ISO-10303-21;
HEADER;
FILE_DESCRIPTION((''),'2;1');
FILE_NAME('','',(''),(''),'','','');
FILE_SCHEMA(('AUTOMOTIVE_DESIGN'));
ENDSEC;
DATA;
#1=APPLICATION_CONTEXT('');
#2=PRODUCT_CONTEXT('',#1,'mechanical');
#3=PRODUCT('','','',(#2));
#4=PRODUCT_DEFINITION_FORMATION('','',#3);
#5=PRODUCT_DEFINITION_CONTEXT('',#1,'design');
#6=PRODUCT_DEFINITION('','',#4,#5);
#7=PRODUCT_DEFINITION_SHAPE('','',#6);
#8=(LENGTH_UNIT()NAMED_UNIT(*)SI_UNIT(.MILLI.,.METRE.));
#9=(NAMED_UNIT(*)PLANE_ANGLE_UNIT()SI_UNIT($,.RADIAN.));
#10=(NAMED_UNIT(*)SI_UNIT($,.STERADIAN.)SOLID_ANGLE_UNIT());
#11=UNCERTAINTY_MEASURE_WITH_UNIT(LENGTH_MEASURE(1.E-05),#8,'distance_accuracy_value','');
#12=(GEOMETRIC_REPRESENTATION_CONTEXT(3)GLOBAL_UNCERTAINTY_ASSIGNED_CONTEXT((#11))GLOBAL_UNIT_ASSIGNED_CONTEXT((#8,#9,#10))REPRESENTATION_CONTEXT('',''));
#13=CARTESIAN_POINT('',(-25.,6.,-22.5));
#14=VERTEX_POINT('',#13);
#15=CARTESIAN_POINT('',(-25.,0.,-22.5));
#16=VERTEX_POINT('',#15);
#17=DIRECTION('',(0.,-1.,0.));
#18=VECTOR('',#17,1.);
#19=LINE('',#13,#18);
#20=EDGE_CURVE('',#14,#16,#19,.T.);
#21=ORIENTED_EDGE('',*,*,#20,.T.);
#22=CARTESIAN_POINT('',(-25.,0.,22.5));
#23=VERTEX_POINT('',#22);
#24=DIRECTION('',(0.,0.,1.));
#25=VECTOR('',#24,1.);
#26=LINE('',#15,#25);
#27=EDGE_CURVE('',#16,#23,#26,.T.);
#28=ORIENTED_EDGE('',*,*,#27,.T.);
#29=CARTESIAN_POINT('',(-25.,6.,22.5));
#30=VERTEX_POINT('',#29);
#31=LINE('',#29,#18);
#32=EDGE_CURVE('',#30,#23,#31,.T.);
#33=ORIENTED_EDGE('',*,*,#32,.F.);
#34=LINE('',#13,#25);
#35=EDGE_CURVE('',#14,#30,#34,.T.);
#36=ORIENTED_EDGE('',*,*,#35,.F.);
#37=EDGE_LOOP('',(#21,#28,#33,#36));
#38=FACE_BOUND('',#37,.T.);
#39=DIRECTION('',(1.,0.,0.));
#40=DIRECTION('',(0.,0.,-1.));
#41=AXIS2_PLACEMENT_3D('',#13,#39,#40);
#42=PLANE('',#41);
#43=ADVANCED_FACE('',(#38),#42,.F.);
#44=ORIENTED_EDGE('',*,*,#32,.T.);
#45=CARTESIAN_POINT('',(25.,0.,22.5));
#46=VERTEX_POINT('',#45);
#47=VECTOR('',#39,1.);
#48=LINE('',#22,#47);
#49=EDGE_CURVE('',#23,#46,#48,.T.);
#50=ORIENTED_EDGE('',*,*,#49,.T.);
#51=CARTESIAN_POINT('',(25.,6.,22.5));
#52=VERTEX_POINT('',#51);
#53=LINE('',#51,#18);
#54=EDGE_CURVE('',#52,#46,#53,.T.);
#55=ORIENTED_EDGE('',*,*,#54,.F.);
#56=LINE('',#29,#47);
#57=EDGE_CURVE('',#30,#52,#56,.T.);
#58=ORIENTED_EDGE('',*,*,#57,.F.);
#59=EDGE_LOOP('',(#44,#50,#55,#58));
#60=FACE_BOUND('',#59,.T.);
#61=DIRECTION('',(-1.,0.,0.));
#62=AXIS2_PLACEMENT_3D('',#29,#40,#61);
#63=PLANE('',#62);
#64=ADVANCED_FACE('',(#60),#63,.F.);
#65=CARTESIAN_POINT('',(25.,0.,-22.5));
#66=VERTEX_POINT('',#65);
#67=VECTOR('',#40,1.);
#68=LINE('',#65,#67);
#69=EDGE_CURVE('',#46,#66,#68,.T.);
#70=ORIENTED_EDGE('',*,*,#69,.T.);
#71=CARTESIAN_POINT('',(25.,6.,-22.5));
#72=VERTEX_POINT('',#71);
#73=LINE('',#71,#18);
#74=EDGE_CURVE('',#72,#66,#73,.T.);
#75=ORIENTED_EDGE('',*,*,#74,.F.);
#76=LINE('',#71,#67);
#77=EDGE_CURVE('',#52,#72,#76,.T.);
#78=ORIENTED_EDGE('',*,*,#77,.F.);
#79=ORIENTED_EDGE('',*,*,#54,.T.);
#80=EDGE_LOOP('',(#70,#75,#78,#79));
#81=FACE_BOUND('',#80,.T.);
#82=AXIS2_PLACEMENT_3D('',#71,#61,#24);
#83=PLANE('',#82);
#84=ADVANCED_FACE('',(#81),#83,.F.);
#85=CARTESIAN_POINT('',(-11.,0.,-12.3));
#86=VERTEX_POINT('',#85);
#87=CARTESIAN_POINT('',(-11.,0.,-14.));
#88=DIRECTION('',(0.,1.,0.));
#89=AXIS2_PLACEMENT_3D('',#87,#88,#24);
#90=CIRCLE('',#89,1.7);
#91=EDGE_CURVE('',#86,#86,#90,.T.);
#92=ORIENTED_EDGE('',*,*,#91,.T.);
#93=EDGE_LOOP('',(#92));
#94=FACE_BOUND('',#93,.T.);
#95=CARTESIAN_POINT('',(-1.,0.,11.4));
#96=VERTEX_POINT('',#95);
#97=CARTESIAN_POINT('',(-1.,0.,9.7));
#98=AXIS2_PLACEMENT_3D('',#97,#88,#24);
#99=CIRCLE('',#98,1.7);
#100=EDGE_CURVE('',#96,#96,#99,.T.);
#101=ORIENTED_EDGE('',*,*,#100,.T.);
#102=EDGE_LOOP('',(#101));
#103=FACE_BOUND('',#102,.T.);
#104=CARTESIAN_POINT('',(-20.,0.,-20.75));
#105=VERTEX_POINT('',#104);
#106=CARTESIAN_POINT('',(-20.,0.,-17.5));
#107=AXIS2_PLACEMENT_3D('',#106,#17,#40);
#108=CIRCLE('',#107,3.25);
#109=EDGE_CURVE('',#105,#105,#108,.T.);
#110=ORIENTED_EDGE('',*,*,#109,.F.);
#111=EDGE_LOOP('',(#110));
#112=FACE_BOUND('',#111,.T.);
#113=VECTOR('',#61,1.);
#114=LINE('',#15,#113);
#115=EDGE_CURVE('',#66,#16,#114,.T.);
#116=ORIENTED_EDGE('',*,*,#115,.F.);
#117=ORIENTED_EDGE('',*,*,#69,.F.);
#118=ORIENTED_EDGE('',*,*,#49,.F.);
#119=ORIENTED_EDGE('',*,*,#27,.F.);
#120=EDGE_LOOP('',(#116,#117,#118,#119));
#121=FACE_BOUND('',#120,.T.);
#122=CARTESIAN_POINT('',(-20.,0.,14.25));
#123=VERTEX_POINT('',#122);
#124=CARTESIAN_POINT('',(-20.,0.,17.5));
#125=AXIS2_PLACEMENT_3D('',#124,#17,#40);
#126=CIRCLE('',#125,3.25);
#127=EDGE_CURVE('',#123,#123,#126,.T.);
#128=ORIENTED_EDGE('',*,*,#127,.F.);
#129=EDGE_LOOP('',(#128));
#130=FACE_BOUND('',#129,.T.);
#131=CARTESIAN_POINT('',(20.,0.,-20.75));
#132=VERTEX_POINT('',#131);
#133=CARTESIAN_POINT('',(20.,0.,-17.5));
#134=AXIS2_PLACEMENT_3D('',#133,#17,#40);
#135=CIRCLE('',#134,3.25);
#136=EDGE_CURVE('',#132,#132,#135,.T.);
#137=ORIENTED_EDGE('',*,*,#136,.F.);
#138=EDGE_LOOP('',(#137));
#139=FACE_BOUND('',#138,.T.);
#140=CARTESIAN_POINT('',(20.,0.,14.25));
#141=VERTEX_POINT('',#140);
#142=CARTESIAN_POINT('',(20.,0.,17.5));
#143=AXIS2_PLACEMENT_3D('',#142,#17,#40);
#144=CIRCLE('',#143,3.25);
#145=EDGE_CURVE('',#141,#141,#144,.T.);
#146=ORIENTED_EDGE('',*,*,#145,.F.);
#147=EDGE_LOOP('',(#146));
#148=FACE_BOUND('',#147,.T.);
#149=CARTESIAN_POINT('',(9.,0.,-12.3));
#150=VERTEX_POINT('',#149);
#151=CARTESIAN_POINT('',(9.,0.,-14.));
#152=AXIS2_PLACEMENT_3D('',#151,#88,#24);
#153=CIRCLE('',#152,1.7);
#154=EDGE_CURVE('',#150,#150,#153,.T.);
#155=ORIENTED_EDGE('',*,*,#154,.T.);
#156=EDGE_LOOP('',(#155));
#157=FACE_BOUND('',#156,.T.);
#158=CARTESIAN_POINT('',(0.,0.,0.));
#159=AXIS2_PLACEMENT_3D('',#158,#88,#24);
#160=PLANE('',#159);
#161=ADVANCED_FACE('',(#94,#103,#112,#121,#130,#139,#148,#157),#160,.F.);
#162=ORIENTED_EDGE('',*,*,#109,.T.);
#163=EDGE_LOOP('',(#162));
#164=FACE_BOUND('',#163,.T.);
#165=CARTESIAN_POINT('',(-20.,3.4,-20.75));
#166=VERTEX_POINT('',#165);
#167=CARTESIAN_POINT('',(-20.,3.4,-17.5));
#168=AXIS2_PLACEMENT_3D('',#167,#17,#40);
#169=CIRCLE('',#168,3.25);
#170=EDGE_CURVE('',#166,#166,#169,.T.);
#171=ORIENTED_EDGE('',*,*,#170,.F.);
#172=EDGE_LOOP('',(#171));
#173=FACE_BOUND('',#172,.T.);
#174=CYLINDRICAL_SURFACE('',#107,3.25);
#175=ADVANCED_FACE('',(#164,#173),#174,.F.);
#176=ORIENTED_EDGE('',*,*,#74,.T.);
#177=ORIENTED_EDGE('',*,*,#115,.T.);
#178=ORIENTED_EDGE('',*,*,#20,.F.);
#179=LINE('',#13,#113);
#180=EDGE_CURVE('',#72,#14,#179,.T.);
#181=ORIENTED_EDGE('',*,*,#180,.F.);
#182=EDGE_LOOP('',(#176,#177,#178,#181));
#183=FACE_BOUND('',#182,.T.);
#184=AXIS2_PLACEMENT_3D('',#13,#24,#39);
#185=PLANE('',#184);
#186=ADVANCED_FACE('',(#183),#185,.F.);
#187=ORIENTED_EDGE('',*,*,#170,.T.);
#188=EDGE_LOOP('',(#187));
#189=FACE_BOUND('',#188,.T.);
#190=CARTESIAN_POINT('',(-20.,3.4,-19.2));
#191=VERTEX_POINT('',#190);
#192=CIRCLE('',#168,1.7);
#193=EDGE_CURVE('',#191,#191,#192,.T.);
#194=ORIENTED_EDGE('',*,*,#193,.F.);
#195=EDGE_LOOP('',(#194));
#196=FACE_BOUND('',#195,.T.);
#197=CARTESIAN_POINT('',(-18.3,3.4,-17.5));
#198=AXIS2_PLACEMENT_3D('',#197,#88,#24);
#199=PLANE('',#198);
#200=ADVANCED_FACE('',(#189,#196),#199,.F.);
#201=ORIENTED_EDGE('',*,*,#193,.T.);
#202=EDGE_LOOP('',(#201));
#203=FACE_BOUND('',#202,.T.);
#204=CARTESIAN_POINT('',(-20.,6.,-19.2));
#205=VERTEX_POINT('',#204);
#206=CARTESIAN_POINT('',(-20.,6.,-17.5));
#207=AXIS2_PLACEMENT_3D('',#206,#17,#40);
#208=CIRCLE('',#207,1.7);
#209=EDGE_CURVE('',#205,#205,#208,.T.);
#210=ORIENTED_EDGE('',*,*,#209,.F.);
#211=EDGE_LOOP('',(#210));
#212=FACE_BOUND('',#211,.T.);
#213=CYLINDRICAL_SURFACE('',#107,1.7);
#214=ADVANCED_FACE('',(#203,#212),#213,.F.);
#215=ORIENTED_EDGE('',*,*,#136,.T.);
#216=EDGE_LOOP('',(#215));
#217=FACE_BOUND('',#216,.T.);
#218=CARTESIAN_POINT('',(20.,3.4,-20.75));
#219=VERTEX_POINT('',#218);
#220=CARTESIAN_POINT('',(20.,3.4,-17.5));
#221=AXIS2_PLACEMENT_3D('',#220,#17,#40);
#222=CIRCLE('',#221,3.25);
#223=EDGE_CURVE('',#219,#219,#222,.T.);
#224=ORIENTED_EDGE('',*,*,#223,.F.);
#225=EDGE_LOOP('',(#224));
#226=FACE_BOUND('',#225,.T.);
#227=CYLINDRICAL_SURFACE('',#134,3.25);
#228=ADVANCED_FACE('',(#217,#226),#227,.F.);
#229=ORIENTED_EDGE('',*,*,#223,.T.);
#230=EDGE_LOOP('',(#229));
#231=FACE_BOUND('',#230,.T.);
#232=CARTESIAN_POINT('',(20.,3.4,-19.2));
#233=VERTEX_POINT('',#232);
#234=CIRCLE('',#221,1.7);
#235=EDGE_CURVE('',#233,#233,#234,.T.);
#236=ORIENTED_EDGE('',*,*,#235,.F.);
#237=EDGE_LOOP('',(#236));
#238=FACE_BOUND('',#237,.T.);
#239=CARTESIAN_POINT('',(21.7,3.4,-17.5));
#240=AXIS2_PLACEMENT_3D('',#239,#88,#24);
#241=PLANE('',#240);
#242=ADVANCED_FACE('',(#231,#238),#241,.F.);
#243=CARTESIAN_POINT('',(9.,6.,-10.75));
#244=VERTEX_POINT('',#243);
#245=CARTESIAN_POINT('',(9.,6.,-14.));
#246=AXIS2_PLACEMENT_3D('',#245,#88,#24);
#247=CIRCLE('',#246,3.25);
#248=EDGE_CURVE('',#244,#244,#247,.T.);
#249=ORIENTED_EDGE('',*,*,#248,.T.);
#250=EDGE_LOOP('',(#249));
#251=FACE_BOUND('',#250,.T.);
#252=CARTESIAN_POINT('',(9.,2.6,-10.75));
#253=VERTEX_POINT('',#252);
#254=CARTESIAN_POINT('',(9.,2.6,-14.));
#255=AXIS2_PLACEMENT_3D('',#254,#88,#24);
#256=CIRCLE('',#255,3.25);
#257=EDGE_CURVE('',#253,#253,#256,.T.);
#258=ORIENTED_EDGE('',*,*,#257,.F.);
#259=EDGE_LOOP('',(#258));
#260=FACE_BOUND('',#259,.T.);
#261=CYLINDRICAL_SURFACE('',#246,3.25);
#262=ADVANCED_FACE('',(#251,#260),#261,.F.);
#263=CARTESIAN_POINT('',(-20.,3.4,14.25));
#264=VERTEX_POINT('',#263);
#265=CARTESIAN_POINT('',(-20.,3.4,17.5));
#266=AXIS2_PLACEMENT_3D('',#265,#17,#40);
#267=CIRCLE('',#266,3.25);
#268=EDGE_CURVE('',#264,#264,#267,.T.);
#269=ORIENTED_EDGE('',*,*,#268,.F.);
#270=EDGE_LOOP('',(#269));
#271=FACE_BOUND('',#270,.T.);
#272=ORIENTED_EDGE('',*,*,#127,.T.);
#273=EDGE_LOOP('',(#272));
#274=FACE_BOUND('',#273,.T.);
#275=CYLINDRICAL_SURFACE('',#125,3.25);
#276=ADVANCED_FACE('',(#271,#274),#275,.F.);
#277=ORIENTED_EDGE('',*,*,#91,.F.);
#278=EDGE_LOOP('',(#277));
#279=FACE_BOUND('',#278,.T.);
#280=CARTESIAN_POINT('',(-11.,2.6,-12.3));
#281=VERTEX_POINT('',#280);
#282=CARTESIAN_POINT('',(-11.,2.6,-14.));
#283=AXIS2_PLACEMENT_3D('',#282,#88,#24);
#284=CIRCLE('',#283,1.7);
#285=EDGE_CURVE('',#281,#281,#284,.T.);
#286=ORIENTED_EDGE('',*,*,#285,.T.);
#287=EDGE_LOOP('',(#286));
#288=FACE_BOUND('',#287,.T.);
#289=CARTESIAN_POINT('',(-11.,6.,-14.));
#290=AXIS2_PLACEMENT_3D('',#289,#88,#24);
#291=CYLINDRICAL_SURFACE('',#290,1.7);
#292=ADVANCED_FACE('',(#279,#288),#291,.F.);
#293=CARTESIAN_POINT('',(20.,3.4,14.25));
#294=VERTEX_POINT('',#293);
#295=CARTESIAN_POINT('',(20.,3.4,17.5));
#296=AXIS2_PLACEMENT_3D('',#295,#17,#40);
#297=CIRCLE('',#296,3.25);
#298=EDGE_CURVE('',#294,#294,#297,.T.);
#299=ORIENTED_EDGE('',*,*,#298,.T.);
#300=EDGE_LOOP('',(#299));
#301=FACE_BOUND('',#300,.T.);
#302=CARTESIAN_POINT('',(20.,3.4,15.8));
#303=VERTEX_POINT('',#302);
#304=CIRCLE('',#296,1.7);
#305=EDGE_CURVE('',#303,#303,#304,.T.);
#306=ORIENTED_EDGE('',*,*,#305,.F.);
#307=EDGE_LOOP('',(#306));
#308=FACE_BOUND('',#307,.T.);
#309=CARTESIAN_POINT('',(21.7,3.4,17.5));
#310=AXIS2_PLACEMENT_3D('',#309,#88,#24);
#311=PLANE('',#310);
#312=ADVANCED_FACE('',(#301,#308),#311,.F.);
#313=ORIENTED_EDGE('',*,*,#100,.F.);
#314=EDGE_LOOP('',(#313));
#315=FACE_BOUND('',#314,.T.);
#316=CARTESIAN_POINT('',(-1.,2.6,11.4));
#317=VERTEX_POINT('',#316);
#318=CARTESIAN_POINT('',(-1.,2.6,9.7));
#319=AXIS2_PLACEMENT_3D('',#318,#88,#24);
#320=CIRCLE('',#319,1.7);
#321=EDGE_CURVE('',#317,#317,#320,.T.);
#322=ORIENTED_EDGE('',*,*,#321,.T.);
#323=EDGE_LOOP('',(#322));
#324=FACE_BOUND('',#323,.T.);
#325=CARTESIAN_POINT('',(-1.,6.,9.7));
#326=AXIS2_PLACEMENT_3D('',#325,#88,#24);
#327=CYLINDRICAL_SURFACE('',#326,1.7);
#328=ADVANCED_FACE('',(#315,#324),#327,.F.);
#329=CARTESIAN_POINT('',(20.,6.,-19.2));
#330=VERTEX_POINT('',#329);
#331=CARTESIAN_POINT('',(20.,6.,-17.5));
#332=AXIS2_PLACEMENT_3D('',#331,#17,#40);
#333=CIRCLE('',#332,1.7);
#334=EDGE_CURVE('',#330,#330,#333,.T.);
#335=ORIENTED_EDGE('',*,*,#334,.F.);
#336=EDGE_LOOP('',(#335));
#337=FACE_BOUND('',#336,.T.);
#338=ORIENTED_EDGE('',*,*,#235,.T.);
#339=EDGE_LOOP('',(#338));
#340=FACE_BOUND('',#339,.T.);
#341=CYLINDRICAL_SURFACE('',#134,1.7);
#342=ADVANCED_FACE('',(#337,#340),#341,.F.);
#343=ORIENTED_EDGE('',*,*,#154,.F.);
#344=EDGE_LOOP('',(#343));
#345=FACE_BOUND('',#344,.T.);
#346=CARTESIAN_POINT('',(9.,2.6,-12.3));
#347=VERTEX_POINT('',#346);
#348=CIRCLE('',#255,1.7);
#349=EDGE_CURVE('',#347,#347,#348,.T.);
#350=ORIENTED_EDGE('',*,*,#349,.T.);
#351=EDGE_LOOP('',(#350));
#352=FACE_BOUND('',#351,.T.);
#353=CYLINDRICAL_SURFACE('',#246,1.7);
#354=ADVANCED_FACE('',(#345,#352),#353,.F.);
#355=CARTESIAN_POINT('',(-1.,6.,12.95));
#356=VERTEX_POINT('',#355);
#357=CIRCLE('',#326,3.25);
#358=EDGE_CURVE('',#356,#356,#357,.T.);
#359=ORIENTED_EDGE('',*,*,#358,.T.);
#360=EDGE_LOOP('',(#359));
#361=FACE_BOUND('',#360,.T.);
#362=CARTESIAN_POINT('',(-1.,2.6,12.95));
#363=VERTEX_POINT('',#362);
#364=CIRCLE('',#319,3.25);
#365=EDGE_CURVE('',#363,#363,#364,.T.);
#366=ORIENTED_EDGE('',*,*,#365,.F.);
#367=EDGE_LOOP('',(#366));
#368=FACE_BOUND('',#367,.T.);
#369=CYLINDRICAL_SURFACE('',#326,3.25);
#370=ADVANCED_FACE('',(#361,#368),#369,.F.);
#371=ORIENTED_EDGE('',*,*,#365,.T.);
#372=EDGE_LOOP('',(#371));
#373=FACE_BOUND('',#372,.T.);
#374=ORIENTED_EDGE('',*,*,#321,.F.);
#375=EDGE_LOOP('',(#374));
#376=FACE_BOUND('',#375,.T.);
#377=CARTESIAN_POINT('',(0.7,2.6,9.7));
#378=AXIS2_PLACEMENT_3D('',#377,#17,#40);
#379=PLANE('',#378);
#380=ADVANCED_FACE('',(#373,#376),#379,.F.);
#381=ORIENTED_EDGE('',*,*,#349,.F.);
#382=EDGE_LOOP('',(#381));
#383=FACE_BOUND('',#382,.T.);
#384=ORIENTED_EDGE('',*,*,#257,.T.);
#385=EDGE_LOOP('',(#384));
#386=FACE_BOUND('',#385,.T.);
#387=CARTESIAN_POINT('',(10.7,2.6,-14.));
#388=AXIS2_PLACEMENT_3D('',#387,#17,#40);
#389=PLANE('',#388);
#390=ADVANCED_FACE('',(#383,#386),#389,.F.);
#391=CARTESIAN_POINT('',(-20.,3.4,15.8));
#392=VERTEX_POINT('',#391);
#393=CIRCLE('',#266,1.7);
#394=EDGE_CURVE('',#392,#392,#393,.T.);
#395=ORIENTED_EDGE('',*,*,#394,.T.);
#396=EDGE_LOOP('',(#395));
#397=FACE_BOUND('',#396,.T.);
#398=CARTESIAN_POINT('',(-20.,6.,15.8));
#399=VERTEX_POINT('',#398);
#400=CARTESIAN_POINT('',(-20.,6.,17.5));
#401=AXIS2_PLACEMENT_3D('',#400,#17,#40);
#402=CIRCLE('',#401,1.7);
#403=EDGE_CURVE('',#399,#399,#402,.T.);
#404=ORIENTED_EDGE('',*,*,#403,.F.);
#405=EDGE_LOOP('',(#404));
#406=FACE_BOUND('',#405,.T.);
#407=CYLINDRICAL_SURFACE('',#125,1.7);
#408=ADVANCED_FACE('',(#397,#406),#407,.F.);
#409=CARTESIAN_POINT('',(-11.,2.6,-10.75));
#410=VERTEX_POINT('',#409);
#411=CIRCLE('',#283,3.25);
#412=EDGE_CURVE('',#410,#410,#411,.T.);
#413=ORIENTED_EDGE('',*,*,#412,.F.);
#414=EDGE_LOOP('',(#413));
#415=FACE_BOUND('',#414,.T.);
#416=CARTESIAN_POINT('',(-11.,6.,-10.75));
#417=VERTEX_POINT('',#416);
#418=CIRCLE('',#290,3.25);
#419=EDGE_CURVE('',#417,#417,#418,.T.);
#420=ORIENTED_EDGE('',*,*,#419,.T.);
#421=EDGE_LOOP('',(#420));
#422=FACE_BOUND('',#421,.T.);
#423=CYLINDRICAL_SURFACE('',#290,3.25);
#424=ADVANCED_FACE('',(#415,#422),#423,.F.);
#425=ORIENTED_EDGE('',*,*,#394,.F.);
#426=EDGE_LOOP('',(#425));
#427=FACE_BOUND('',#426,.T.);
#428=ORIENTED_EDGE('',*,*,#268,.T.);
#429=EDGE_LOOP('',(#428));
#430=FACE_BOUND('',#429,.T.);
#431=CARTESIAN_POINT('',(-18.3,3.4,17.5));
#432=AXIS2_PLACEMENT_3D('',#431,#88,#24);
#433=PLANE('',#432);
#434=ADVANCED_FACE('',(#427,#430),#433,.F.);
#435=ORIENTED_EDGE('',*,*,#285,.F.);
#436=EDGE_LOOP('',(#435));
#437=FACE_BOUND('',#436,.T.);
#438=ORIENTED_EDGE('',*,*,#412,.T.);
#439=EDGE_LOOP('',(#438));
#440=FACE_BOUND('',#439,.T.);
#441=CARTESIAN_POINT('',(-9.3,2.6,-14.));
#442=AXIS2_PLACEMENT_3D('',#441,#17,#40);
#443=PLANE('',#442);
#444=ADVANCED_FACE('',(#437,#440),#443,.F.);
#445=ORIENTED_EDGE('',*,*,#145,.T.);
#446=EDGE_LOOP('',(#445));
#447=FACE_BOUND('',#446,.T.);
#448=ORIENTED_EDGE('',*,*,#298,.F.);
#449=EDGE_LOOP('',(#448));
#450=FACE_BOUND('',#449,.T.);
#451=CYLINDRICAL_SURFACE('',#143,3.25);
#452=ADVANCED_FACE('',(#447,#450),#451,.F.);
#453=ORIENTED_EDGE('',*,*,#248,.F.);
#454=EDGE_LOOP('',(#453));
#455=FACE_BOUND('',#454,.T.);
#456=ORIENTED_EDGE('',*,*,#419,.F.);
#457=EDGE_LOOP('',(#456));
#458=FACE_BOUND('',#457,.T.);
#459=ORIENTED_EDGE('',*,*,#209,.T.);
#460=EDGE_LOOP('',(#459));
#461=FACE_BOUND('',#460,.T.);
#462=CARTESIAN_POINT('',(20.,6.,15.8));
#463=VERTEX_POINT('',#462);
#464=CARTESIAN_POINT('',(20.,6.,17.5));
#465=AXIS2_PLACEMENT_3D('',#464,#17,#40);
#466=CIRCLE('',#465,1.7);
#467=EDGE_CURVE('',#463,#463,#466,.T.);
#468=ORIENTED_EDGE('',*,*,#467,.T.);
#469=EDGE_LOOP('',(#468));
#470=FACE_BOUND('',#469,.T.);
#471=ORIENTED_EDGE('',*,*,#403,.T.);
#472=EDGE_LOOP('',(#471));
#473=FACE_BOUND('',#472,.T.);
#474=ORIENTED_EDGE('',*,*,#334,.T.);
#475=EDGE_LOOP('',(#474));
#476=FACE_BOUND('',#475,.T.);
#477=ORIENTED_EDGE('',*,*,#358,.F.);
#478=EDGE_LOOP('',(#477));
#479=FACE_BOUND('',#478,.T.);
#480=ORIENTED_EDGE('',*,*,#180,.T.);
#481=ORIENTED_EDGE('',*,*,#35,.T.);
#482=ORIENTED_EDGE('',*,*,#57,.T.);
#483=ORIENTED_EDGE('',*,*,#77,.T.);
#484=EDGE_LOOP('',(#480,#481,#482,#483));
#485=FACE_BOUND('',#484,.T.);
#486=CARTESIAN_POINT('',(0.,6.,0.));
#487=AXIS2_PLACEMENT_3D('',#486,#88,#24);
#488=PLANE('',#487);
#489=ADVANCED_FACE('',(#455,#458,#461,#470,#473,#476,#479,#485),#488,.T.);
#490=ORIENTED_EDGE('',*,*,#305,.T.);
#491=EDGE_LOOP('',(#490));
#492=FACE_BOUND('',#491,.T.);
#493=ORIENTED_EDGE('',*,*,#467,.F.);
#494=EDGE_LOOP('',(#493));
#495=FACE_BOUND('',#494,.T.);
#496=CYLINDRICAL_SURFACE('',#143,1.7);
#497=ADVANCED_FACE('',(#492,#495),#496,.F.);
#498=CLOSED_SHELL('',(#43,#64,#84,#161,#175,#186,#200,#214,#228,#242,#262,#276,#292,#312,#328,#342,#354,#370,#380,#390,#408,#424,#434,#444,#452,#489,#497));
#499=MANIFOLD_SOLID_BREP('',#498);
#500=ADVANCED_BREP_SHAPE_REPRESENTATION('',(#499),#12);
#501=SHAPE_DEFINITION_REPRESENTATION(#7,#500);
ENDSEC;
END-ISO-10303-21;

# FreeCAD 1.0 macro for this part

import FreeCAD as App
import Part
import Sketcher

V = App.Vector


def add_polygon(sketch, points):
    """Adds a closed chain of lines whose ends are joined by coincident constraints."""
    first, n = sketch.GeometryCount, len(points)
    for a, b in zip(points, points[1:] + points[:1]):
        sketch.addGeometry(Part.LineSegment(App.Vector(*a, 0), App.Vector(*b, 0)), False)
    for i in range(n):
        sketch.addConstraint(Sketcher.Constraint("Coincident", first + i, 2, first + (i + 1) % n, 1))

doc = App.newDocument("Part")
body = doc.addObject("PartDesign::Body", "Body")

# Sketch on XZ plane
sketch1 = doc.addObject("Sketcher::SketchObject", "Sketch")
body.addObject(sketch1)
sketch1.AttachmentSupport = (doc.XZ_Plane, [""])
sketch1.MapMode = "FlatFace"
add_polygon(sketch1, [(-25, -22.5), (-25, 22.5), (25, 22.5), (25, -22.5)])  # lines 0-3
sketch1.addConstraint(Sketcher.Constraint("Vertical", 0))
sketch1.addConstraint(Sketcher.Constraint("Horizontal", 1))
sketch1.addConstraint(Sketcher.Constraint("Vertical", 2))
sketch1.addConstraint(Sketcher.Constraint("Horizontal", 3))
sketch1.addConstraint(Sketcher.Constraint("Symmetric", 0, 2, 2, 2, -1, 1))
sketch1.addConstraint(Sketcher.Constraint("DistanceX", 1, 1, 1, 2, 50.0))
sketch1.addConstraint(Sketcher.Constraint("DistanceY", 0, 1, 0, 2, 45.0))
pad1 = doc.addObject("PartDesign::Pad", "Pad")
body.addObject(pad1)
pad1.Profile = sketch1
pad1.Length = 6
pad1.Reversed = True

# Sketch on XZ plane
sketch2 = doc.addObject("Sketcher::SketchObject", "Sketch001")
body.addObject(sketch2)
sketch2.AttachmentSupport = (doc.XZ_Plane, [""])
sketch2.MapMode = "FlatFace"
sketch2.addGeometry(Part.Circle(V(-20, 17.5, 0), V(0, 0, 1), 1.7), False)
sketch2.addGeometry(Part.Circle(V(20, 17.5, 0), V(0, 0, 1), 1.7), False)
sketch2.addGeometry(Part.Circle(V(20, -17.5, 0), V(0, 0, 1), 1.7), False)
sketch2.addGeometry(Part.Circle(V(-20, -17.5, 0), V(0, 0, 1), 1.7), False)
sketch2.addConstraint(Sketcher.Constraint("Equal", 0, 1))
sketch2.addConstraint(Sketcher.Constraint("Equal", 1, 2))
sketch2.addConstraint(Sketcher.Constraint("Equal", 2, 3))
sketch2.addConstraint(Sketcher.Constraint("Symmetric", 0, 3, 2, 3, -1, 1))
sketch2.addConstraint(Sketcher.Constraint("Symmetric", 1, 3, 3, 3, -1, 1))
sketch2.addConstraint(Sketcher.Constraint("Symmetric", 0, 3, 1, 3, -2))
sketch2.addConstraint(Sketcher.Constraint("Diameter", 0, 3.4))
sketch2.addConstraint(Sketcher.Constraint("DistanceX", 0, 3, -1, 1, 20.0))
sketch2.addConstraint(Sketcher.Constraint("DistanceY", 2, 3, 1, 3, 35.0))
doc.recompute()
hole = doc.addObject("PartDesign::Hole", "Hole")
body.addObject(hole)
hole.Profile = sketch2
hole.ThreadType = "None"
hole.Diameter = 3.4
hole.DepthType = "ThroughAll"
hole.HoleCutType = "Counterbore"
hole.HoleCutDiameter = 6.5
hole.HoleCutDepth = 3.4

# Sketch on XZ plane
sketch3 = doc.addObject("Sketcher::SketchObject", "Sketch002")
body.addObject(sketch3)
sketch3.AttachmentSupport = (doc.XZ_Plane, [""])
sketch3.MapMode = "FlatFace"
sketch3.AttachmentOffset = App.Placement(V(0, 0, -6), App.Rotation())
sketch3.addGeometry(Part.Circle(V(-11, -14, 0), V(0, 0, 1), 1.7), False)
sketch3.addGeometry(Part.Circle(V(9, -14, 0), V(0, 0, 1), 1.7), False)
sketch3.addGeometry(Part.Circle(V(-1, 9.7, 0), V(0, 0, 1), 1.7), False)
sketch3.addConstraint(Sketcher.Constraint("Equal", 0, 1))
sketch3.addConstraint(Sketcher.Constraint("Equal", 1, 2))
sketch3.addConstraint(Sketcher.Constraint("Horizontal", 0, 3, 1, 3))
sketch3.addConstraint(Sketcher.Constraint("Diameter", 0, 3.4))
sketch3.addConstraint(Sketcher.Constraint("DistanceX", 0, 3, -1, 1, 11.0))
sketch3.addConstraint(Sketcher.Constraint("DistanceY", 0, 3, -1, 1, 14.0))
sketch3.addConstraint(Sketcher.Constraint("DistanceX", -1, 1, 1, 3, 9.0))
sketch3.addConstraint(Sketcher.Constraint("DistanceX", 2, 3, -1, 1, 1.0))
sketch3.addConstraint(Sketcher.Constraint("DistanceY", -1, 1, 2, 3, 9.7))
doc.recompute()
hole2 = doc.addObject("PartDesign::Hole", "Hole001")
body.addObject(hole2)
hole2.Profile = sketch3
hole2.ThreadType = "None"
hole2.Diameter = 3.4
hole2.DepthType = "ThroughAll"
hole2.HoleCutType = "Counterbore"
hole2.HoleCutDiameter = 6.5
hole2.HoleCutDepth = 3.4
hole2.Reversed = True

doc.recompute()
